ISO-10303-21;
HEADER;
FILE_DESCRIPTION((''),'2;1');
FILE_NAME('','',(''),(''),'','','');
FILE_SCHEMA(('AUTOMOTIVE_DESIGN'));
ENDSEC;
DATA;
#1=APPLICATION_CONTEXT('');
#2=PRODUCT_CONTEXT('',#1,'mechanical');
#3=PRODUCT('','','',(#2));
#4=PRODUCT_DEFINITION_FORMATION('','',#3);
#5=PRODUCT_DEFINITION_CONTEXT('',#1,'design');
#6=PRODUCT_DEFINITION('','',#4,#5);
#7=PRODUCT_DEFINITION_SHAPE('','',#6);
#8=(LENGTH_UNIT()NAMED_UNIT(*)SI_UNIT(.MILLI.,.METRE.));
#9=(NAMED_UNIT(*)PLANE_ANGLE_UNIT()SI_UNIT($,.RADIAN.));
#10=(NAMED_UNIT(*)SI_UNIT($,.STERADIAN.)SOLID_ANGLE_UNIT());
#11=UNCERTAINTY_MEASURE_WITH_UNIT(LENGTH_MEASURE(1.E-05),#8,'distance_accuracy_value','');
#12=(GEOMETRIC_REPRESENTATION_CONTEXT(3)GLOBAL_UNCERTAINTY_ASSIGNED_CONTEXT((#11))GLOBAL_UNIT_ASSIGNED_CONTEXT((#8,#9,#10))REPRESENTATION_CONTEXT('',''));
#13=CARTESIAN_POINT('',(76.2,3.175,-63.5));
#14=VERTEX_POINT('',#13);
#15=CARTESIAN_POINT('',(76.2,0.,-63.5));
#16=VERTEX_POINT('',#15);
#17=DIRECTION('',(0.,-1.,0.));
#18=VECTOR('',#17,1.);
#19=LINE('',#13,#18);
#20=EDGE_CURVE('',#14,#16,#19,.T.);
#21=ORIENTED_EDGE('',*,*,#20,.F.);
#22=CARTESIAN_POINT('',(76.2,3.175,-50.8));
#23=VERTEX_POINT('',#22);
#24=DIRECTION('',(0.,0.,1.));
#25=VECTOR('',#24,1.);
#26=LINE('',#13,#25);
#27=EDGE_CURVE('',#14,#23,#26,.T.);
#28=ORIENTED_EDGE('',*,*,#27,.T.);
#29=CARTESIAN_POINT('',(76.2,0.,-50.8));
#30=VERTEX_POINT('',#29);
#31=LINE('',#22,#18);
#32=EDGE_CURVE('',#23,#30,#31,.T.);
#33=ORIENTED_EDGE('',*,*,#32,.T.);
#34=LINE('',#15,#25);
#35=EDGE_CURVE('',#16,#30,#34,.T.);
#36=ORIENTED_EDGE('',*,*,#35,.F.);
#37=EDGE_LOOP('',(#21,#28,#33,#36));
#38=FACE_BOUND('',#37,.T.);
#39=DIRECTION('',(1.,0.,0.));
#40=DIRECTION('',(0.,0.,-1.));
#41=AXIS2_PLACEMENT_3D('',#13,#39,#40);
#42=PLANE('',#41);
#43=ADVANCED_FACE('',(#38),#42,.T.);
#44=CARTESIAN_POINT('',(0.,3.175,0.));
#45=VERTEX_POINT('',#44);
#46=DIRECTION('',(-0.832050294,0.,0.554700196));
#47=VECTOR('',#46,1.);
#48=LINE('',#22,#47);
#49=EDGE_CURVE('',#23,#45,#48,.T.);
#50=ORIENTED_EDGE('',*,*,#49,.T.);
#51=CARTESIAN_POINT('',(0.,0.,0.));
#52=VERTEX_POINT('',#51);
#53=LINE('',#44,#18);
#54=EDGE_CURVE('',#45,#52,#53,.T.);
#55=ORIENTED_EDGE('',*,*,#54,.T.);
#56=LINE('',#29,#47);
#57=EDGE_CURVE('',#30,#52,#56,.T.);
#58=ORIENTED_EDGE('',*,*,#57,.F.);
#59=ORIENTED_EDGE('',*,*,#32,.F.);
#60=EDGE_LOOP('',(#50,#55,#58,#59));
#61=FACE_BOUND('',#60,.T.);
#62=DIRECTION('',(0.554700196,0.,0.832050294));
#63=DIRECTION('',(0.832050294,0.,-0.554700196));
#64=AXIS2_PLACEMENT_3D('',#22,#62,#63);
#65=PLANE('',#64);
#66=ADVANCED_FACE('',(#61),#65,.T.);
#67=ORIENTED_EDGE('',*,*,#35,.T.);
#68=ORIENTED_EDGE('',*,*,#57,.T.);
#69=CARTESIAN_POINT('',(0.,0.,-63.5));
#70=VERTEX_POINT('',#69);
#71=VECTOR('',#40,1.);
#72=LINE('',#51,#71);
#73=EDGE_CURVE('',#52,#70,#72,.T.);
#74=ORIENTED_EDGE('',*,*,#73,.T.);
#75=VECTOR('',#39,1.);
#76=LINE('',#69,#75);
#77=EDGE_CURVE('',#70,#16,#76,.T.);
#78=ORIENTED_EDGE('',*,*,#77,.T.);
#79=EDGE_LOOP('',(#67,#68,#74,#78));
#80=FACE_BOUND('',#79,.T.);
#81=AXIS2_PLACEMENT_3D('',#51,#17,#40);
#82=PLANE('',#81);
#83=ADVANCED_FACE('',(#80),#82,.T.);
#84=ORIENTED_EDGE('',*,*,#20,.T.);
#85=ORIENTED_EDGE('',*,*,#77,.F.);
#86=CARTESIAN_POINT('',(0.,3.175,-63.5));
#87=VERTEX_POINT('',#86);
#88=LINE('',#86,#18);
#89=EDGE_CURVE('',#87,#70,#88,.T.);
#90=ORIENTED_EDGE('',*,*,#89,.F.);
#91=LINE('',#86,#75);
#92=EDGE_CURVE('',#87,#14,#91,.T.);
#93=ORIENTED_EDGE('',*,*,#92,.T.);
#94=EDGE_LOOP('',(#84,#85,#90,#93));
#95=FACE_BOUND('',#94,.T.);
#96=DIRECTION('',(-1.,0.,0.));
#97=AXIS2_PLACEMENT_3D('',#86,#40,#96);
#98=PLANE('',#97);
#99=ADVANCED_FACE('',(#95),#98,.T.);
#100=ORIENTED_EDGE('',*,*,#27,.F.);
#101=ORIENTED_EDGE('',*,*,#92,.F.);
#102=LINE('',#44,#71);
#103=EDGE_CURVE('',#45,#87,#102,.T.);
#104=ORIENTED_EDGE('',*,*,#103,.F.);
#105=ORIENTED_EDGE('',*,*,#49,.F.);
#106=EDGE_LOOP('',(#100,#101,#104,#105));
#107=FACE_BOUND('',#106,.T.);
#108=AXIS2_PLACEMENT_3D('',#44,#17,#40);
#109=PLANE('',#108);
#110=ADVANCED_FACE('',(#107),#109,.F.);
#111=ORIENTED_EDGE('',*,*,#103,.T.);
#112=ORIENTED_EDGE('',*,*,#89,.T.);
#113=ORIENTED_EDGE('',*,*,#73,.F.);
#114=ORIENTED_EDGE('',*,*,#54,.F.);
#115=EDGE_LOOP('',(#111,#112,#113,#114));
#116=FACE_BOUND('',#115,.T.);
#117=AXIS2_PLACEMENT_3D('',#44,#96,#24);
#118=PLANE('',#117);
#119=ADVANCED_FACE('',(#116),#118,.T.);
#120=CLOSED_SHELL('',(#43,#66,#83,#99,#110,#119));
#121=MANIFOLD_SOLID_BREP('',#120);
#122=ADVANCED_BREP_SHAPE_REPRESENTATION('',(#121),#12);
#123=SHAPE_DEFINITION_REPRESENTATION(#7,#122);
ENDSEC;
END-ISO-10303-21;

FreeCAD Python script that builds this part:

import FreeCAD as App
import Part
import Sketcher
Q = App.Units.Quantity


def add_polygon(sketch, points):
    """Adds a closed chain of lines whose ends are joined by coincident constraints."""
    first, n = sketch.GeometryCount, len(points)
    for a, b in zip(points, points[1:] + points[:1]):
        sketch.addGeometry(Part.LineSegment(App.Vector(*a, 0), App.Vector(*b, 0)), False)
    for i in range(n):
        sketch.addConstraint(Sketcher.Constraint("Coincident", first + i, 2, first + (i + 1) % n, 1))

doc = App.newDocument("Part")
params = doc.addObject("Spreadsheet::Sheet", "Params")
for row, (alias, value) in enumerate([
    ("sketch1_width", "3 in"),
    ("sketch1_height", "2.5 in"),
    ("sketch1_height2", "0.5 in"),
    ("pad1_length", "0.125 in"),
], start=1):
    params.set(f"A{row}", alias)
    params.set(f"B{row}", "=" + value)
    params.setAlias(f"B{row}", alias)

body = doc.addObject("PartDesign::Body", "Body")

sketch1 = doc.addObject("Sketcher::SketchObject", "Sketch")
body.addObject(sketch1)
sketch1.AttachmentSupport = (doc.XZ_Plane, [""])
sketch1.MapMode = "FlatFace"
add_polygon(sketch1, [(0, -64), (0, 0), (76, -51), (76, -64)])
sketch1.addConstraint([
    Sketcher.Constraint("Vertical", 0),
    Sketcher.Constraint("Vertical", 2),
    Sketcher.Constraint("Horizontal", 3),
    Sketcher.Constraint("Coincident", 0, 2, -1, 1),
    Sketcher.Constraint("DistanceX", 3, 2, 3, 1, Q("3 in")),
    Sketcher.Constraint("DistanceY", 0, 1, 0, 2, Q("2.5 in")),
    Sketcher.Constraint("DistanceY", 2, 2, 2, 1, Q("0.5 in")),
])
sketch1.setExpression("Constraints[8]", "Params.sketch1_width")
sketch1.setExpression("Constraints[9]", "Params.sketch1_height")
sketch1.setExpression("Constraints[10]", "Params.sketch1_height2")
pad1 = doc.addObject("PartDesign::Pad", "Pad")
body.addObject(pad1)
pad1.Profile = sketch1
pad1.setExpression("Length", "Params.pad1_length")
pad1.Reversed = True

doc.recompute()
